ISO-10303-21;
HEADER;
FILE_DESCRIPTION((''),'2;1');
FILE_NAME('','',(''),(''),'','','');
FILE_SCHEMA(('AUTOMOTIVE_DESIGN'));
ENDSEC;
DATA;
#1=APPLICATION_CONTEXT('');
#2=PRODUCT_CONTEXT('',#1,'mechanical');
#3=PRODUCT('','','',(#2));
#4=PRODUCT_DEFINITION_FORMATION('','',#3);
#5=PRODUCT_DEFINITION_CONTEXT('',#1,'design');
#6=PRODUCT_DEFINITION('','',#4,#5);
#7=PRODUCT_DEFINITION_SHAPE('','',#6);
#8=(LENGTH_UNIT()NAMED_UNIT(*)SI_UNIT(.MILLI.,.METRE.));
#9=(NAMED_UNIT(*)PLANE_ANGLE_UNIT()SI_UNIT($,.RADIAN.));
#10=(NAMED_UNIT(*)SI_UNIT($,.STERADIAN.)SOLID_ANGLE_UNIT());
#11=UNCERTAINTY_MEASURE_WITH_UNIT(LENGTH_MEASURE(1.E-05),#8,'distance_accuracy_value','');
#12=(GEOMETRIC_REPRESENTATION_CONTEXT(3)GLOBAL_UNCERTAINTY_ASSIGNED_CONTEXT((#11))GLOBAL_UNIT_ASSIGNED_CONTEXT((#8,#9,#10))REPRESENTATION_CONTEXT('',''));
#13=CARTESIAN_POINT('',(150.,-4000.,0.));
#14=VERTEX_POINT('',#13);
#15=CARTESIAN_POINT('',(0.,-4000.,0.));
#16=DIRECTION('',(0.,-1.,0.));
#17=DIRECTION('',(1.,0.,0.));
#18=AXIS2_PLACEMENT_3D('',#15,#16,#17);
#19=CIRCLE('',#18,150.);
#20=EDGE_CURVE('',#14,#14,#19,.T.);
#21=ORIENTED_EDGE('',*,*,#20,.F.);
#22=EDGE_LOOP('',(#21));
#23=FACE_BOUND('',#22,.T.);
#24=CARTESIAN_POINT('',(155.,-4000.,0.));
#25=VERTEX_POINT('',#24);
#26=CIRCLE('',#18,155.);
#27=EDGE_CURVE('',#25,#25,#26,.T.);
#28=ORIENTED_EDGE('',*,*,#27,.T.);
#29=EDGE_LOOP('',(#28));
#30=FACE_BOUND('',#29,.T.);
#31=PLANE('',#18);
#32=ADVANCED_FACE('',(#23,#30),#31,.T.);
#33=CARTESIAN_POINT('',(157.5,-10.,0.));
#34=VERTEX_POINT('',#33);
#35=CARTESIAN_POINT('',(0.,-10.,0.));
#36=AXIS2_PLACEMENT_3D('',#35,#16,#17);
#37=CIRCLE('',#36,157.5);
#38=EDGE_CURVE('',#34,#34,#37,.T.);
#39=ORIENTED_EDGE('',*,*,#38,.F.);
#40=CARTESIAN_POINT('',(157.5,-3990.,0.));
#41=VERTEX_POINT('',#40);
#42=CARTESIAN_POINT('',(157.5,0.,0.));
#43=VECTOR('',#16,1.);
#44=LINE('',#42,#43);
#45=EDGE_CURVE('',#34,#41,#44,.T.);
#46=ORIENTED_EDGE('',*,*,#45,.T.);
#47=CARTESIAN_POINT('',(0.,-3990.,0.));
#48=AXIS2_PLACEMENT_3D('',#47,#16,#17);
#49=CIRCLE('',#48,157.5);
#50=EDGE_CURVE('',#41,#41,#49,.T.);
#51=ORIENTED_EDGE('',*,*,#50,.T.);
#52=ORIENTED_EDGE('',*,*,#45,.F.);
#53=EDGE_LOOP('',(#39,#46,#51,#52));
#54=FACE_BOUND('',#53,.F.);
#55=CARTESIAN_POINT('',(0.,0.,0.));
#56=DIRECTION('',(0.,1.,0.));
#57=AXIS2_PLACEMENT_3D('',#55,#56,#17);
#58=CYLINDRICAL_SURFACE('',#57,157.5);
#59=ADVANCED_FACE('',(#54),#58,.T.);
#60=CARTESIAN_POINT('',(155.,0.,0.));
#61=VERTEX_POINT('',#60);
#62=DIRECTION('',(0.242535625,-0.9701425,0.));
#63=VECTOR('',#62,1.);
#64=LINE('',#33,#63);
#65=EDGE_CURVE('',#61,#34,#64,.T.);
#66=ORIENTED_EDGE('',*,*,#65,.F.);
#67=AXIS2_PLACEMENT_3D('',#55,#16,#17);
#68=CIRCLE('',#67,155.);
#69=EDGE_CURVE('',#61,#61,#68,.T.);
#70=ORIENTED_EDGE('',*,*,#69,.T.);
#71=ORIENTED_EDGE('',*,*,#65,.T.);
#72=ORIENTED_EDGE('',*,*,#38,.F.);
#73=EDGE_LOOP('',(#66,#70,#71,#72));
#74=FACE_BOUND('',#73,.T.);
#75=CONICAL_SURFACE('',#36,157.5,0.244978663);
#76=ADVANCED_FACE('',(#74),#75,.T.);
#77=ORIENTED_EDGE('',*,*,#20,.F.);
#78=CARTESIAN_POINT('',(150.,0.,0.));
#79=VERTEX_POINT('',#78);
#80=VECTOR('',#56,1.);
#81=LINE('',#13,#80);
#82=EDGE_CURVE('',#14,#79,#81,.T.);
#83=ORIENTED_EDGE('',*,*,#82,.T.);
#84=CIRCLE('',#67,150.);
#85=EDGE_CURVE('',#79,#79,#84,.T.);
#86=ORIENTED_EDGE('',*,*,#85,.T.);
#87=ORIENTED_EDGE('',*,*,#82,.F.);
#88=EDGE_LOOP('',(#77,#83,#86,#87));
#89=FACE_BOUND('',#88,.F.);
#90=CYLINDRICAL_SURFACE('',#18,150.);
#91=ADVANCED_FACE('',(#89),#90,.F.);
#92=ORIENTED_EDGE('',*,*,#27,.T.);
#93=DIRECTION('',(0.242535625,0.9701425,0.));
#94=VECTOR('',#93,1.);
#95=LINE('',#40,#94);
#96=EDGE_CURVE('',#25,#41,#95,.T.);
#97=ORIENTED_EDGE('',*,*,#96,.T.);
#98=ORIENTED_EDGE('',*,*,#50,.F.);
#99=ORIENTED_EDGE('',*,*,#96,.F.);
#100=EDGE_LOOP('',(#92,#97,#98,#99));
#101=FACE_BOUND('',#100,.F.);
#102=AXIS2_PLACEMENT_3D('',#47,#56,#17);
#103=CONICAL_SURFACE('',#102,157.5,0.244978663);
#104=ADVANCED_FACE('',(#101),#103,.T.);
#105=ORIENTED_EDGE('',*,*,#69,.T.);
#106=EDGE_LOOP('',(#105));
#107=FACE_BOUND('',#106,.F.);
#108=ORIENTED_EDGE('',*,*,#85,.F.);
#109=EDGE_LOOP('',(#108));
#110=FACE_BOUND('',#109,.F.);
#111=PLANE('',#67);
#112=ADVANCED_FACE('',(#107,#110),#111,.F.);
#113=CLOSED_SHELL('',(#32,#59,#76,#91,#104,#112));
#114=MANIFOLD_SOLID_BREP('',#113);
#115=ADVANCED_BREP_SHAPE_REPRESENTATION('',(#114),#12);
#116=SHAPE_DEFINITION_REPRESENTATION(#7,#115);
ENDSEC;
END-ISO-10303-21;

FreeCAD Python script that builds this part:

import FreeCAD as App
import Part
import Sketcher
from FreeCAD import Vector


def edges_at(feature, points):
    """Names of the edges that pass closest to the given points."""
    edges = feature.Shape.Edges
    near = lambda p: min(range(len(edges)), key=lambda i: edges[i].distToShape(Part.Vertex(*p))[0])
    return sorted({f"Edge{near(p) + 1}" for p in points})

doc = App.newDocument("Part")
body = doc.addObject("PartDesign::Body", "Body")

sketch1 = body.newObject("Sketcher::SketchObject", "Sketch")
sketch1.AttachmentSupport = (doc.getObject("XZ_Plane"), [""])
sketch1.MapMode = "FlatFace"
sketch1.addGeometry(Part.Circle(Vector(0, 0, 0), Vector(0, 0, 1), 158), False)
sketch1.addConstraint([
    Sketcher.Constraint("Coincident", 0, 3, -1, 1),
    Sketcher.Constraint("Diameter", 0, 315.0),
])
pad1 = body.newObject("PartDesign::Pad", "Pad")
pad1.Profile = sketch1
pad1.Length = 4000

sketch2 = body.newObject("Sketcher::SketchObject", "Sketch001")
sketch2.AttachmentSupport = (doc.getObject("XZ_Plane"), [""])
sketch2.MapMode = "FlatFace"
sketch2.AttachmentOffset = App.Placement(Vector(0, 0, 4000), App.Rotation())
sketch2.addGeometry(Part.Circle(Vector(0, 0, 0), Vector(0, 0, 1), 150), False)
sketch2.addConstraint([
    Sketcher.Constraint("Coincident", 0, 3, -1, 1),
    Sketcher.Constraint("Diameter", 0, 300.0),
])
pocket1 = body.newObject("PartDesign::Pocket", "Pocket")
pocket1.Profile = sketch2
pocket1.Type = "ThroughAll"
doc.recompute()

chamfer = body.newObject("PartDesign::Chamfer", "Chamfer")
chamfer.Base = (pocket1, edges_at(pocket1, [(-157.5, -4000, 0)]))
chamfer.ChamferType = "Two distances"
chamfer.Size = 2.5
chamfer.Size2 = 10
chamfer.FlipDirection = True
doc.recompute()

chamfer2 = body.newObject("PartDesign::Chamfer", "Chamfer001")
chamfer2.Base = (chamfer, edges_at(chamfer, [(-157.5, 0, 0)]))
chamfer2.ChamferType = "Two distances"
chamfer2.Size = 2.5
chamfer2.Size2 = 10
chamfer2.FlipDirection = True

doc.recompute()
